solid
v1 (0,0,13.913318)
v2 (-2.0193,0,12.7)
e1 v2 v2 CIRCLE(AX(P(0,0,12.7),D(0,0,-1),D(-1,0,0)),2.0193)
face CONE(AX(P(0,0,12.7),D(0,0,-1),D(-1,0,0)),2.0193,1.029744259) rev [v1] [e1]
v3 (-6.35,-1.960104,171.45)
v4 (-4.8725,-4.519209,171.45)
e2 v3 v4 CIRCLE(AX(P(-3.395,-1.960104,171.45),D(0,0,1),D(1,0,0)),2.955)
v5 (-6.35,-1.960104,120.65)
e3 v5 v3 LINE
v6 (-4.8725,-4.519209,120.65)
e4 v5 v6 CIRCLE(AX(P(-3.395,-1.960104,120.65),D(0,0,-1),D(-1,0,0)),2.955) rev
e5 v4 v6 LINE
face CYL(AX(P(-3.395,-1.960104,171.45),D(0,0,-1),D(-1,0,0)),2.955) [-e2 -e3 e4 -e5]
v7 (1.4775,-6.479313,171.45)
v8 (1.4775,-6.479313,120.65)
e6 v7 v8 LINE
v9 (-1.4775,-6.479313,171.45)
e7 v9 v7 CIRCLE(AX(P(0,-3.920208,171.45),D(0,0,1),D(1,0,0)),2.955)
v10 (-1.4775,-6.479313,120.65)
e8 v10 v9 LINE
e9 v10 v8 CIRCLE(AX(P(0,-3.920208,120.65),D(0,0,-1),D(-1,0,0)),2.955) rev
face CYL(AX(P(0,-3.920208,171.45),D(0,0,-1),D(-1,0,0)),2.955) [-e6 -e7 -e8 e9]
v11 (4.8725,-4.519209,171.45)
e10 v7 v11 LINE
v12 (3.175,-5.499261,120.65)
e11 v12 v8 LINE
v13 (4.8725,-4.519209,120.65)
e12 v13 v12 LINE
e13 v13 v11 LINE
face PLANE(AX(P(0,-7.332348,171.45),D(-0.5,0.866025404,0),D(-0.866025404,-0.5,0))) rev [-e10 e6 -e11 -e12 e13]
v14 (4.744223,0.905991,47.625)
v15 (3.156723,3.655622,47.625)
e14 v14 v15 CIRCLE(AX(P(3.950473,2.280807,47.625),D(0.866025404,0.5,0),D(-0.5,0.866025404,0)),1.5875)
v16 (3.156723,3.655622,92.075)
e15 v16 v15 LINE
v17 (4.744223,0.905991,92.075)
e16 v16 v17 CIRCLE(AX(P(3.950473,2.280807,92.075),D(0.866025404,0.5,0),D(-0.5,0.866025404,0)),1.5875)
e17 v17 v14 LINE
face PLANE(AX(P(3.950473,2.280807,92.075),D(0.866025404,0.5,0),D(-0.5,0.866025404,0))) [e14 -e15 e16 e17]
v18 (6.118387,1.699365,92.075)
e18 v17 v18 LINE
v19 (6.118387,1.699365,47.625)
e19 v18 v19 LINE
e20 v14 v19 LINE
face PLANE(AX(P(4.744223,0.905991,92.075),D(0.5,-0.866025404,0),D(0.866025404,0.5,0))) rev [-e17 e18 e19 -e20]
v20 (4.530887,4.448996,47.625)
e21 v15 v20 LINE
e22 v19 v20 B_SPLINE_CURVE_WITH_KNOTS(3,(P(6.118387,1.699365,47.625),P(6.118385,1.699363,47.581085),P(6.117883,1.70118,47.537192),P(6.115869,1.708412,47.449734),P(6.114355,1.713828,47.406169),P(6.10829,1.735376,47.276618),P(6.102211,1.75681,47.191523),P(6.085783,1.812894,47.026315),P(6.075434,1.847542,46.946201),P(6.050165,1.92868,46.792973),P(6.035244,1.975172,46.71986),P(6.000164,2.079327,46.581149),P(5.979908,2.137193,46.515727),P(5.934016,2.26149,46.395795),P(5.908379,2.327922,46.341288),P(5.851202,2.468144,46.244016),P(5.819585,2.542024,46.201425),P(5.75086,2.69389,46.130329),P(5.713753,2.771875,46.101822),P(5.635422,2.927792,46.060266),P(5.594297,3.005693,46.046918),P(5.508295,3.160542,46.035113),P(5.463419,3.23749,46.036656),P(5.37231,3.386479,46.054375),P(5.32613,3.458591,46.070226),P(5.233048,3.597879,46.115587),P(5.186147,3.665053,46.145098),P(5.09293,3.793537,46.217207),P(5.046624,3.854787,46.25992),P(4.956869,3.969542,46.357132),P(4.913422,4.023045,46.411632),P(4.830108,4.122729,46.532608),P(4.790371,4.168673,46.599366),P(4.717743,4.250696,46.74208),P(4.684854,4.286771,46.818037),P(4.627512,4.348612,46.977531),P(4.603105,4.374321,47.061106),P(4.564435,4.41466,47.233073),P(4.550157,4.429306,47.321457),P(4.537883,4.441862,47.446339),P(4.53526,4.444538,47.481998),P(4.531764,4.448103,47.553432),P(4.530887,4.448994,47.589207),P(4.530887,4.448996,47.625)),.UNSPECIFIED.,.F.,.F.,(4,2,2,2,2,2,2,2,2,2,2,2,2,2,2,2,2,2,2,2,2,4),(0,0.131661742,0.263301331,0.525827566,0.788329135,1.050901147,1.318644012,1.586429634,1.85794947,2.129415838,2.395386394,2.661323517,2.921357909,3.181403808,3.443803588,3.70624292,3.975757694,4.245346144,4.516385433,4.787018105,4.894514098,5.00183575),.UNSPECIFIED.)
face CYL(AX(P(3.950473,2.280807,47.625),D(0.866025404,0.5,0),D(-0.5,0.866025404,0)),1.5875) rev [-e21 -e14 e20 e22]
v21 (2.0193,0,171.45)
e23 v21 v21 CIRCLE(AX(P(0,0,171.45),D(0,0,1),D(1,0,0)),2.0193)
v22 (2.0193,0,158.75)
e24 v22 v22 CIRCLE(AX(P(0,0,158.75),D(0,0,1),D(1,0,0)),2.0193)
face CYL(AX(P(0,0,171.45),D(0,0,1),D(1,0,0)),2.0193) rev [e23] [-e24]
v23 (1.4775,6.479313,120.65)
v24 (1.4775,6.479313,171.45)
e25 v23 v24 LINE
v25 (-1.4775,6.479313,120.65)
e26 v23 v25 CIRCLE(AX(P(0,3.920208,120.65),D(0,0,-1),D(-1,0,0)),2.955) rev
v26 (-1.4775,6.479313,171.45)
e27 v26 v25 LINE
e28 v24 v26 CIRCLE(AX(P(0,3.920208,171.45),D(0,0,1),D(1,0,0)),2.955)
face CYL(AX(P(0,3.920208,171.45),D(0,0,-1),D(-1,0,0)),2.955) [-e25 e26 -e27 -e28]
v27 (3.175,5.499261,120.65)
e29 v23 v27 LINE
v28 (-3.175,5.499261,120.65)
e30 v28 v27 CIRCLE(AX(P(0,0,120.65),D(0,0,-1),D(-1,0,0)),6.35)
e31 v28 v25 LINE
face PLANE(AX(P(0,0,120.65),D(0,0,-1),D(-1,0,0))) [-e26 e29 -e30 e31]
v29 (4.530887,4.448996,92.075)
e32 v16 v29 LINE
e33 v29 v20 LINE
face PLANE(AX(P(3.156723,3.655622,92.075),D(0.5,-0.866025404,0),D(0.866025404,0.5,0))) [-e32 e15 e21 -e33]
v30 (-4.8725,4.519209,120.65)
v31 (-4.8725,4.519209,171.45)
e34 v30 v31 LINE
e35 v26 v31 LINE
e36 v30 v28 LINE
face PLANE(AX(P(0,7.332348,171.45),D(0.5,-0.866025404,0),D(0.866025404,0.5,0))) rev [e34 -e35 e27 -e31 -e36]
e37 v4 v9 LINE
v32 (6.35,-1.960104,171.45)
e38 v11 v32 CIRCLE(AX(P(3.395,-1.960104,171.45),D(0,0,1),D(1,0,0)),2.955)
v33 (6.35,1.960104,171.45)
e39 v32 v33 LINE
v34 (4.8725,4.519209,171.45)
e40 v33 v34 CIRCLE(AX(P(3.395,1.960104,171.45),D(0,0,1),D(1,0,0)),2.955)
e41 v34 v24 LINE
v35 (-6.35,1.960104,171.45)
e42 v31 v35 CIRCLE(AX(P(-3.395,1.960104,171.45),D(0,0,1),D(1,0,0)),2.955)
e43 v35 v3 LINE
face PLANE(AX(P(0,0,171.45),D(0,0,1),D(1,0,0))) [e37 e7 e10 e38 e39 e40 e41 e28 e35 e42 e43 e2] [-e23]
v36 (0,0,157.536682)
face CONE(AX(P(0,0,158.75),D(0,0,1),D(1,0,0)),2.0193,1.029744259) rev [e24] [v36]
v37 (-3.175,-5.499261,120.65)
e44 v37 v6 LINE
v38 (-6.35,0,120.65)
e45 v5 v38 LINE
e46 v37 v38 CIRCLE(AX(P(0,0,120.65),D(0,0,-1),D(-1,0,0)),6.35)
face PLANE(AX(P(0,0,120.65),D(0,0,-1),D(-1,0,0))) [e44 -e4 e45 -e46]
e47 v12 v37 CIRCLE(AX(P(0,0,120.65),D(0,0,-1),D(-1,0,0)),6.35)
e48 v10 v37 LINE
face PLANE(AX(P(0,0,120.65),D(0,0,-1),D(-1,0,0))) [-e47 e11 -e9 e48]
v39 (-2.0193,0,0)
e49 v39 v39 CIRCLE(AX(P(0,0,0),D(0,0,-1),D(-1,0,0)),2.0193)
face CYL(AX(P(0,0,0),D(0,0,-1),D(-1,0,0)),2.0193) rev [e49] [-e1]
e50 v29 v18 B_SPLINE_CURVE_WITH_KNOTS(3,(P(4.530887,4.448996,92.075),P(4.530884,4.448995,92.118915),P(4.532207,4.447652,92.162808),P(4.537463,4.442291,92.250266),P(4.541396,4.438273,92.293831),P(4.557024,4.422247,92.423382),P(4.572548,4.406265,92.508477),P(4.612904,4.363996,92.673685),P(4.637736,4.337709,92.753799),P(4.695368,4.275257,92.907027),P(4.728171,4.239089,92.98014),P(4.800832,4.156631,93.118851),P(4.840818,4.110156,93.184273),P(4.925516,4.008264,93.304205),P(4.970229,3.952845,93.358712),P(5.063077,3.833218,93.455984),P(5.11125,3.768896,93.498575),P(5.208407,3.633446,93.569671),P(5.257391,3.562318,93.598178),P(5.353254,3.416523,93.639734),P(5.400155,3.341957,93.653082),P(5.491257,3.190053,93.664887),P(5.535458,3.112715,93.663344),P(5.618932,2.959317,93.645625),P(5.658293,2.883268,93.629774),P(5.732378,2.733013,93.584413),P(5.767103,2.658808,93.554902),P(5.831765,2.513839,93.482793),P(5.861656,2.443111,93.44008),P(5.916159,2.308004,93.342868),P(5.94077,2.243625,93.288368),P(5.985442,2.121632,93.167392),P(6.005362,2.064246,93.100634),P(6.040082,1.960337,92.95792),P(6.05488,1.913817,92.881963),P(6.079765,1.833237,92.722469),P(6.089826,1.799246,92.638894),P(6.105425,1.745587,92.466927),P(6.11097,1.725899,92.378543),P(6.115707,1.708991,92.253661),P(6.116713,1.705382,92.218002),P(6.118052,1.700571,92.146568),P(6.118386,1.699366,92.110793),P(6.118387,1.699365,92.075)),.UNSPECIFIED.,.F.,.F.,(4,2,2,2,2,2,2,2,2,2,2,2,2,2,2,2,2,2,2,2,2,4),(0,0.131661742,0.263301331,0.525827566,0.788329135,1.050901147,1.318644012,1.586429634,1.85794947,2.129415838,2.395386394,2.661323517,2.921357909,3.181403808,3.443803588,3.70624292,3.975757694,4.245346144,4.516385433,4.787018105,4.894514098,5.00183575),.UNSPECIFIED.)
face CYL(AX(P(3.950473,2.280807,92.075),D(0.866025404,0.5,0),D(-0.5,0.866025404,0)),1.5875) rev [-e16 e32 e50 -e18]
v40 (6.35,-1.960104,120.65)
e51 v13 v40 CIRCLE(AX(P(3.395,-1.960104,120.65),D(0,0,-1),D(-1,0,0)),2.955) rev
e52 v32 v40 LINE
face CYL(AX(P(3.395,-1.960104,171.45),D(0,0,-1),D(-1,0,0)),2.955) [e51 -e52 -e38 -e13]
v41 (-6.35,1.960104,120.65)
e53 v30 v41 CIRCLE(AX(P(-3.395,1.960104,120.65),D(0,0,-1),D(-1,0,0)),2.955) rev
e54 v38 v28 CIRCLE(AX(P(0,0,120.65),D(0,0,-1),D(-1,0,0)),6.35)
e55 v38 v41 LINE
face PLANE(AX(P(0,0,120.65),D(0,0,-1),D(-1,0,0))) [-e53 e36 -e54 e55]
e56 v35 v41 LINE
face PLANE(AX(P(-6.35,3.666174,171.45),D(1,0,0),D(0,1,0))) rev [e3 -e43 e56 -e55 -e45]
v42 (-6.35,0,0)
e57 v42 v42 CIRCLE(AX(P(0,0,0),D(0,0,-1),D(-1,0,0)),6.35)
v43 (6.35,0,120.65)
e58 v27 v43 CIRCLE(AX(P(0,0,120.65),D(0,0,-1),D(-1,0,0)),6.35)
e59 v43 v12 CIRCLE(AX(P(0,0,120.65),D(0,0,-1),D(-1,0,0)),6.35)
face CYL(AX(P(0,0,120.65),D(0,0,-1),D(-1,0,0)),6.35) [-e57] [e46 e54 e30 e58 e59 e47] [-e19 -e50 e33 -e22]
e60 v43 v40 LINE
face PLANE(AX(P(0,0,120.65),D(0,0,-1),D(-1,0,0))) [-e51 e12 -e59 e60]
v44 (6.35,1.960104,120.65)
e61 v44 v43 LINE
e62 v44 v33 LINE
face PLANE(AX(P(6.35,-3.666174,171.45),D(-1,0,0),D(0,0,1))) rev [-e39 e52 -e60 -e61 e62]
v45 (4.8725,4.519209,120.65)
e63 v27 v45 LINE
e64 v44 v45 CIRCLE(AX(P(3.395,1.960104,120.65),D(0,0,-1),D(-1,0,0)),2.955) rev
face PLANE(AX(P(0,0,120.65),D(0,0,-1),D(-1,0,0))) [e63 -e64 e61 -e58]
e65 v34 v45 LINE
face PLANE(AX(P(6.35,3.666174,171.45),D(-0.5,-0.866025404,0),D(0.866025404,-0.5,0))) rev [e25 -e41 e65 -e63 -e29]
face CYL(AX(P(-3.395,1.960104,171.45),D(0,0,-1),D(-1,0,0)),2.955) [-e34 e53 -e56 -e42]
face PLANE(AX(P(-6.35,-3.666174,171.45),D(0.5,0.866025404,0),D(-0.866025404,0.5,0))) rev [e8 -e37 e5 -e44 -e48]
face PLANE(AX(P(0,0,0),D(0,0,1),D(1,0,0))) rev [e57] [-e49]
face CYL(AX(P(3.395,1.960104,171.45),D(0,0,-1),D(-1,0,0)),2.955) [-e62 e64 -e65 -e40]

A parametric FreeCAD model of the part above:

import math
import FreeCAD as App
import Part
import Sketcher
Q = App.Units.Quantity


def edges_at(feature, points):
    """Names of the edges that pass closest to the given points."""
    edges = feature.Shape.Edges
    near = lambda p: min(range(len(edges)), key=lambda i: edges[i].distToShape(Part.Vertex(*p))[0])
    return sorted({f"Edge{near(p) + 1}" for p in points})


def add_polygon(sketch, points):
    """Adds a closed chain of lines whose ends are joined by coincident constraints."""
    first, n = sketch.GeometryCount, len(points)
    for a, b in zip(points, points[1:] + points[:1]):
        sketch.addGeometry(Part.LineSegment(App.Vector(*a, 0), App.Vector(*b, 0)), False)
    for i in range(n):
        sketch.addConstraint(Sketcher.Constraint("Coincident", first + i, 2, first + (i + 1) % n, 1))

doc = App.newDocument("Part")
body = doc.addObject("PartDesign::Body", "Body")

# Sketch on XY plane
sketch1 = body.newObject("Sketcher::SketchObject", "Sketch")
sketch1.AttachmentSupport = (doc.getObject("XY_Plane"), [""])
sketch1.MapMode = "FlatFace"
add_polygon(sketch1, [(0, 7), (-6, 4), (-6, -4), (0, -7), (6, -4), (6, 4)])  # lines 0-5
sketch1.addConstraint([
    Sketcher.Constraint("Vertical", 1),
    Sketcher.Constraint("Vertical", 4),
    Sketcher.Constraint("Symmetric", 0, 2, 3, 2, -1, 1),
    Sketcher.Constraint("Symmetric", 2, 2, 5, 2, -1, 1),
    Sketcher.Constraint("PointOnObject", 2, 2, -2),
    Sketcher.Constraint("Parallel", 2, 5),
    Sketcher.Constraint("Horizontal", 1, 2, 3, 2),
    Sketcher.Constraint("Angle", 0, Q("-150 deg")),
    Sketcher.Constraint("DistanceX", 1, 2, 3, 2, Q("0.5 in")),
    Sketcher.Constraint("DistanceY", 1, 2, 1, 1, 7.332348),
])
pad1 = body.newObject("PartDesign::Pad", "Pad")
pad1.Profile = sketch1
pad1.Length = Q("6.75 in")
doc.recompute()

fillet = body.newObject("PartDesign::Fillet", "Fillet")
fillet.Base = (pad1, edges_at(pad1, [
    (6.35, 3.666, 85.725),
    (6.35, -3.666, 85.725),
    (0, -7.332, 85.725),
    (-6.35, -3.666, 85.725),
    (-6.35, 3.666, 85.725),
    (0, 7.332, 85.725),
]))
fillet.Radius = 2.955

# Sketch on XY plane
sketch2 = body.newObject("Sketcher::SketchObject", "Sketch001")
sketch2.AttachmentSupport = (doc.getObject("XY_Plane"), [""])
sketch2.MapMode = "FlatFace"
sketch2.addGeometry(Part.Circle(App.Vector(0, 0, 0), App.Vector(0, 0, 1), 2), False)
sketch2.addConstraint([
    Sketcher.Constraint("Coincident", 0, 3, -1, 1),
    Sketcher.Constraint("Diameter", 0, Q("0.159 in")),
])
doc.recompute()
hole = body.newObject("PartDesign::Hole", "Hole")
hole.Profile = sketch2
hole.ThreadType = "None"
hole.Diameter = Q("0.159 in")
hole.DepthType = "Dimension"
hole.Depth = Q("0.5 in")
hole.DrillPoint = "Angled"
hole.DrillPointAngle = 118
hole.Reversed = True

# Sketch on XY plane
sketch3 = body.newObject("Sketcher::SketchObject", "Sketch002")
sketch3.AttachmentSupport = (doc.getObject("XY_Plane"), [""])
sketch3.MapMode = "FlatFace"
sketch3.AttachmentOffset = App.Placement(App.Vector(0, 0, 6.75 * 25.4), App.Rotation())
sketch3.addGeometry(Part.Circle(App.Vector(0, 0, 0), App.Vector(0, 0, 1), 2), False)
sketch3.addConstraint([
    Sketcher.Constraint("Coincident", 0, 3, -1, 1),
    Sketcher.Constraint("Diameter", 0, Q("0.159 in")),
])
doc.recompute()
hole2 = body.newObject("PartDesign::Hole", "Hole001")
hole2.Profile = sketch3
hole2.ThreadType = "None"
hole2.Diameter = Q("0.159 in")
hole2.DepthType = "Dimension"
hole2.Depth = Q("0.5 in")
hole2.DrillPoint = "Angled"
hole2.DrillPointAngle = 118

# Sketch on XY plane
sketch4 = body.newObject("Sketcher::SketchObject", "Sketch003")
sketch4.AttachmentSupport = (doc.getObject("XY_Plane"), [""])
sketch4.MapMode = "FlatFace"
add_polygon(sketch4, [(25, 25), (25, -25), (-25, -25), (-25, 25)])  # lines 0-3
sketch4.addGeometry(Part.Circle(App.Vector(0, 0, 0), App.Vector(0, 0, 1), 6), False)  # 4
sketch4.addConstraint([
    Sketcher.Constraint("Vertical", 0),
    Sketcher.Constraint("Horizontal", 1),
    Sketcher.Constraint("Vertical", 2),
    Sketcher.Constraint("Horizontal", 3),
    Sketcher.Constraint("Coincident", 4, 3, -1, 1),
    Sketcher.Constraint("Symmetric", 0, 2, 2, 2, -1, 1),
    Sketcher.Constraint("Diameter", 4, Q("0.5 in")),
    Sketcher.Constraint("DistanceX", 1, 2, 1, 1, 49.194),
    Sketcher.Constraint("DistanceY", 0, 2, 0, 1, 50.244),
])
pocket1 = body.newObject("PartDesign::Pocket", "Pocket")
pocket1.Profile = sketch4
pocket1.Length = Q("4.75 in")
pocket1.Reversed = True

# Sketch on an angled plane
sketch5 = body.newObject("Sketcher::SketchObject", "Sketch004")
sketch5.Placement = App.Placement(App.Vector(5.61125, 3.239657, 0), App.Rotation(App.Vector(0, 0, 1), App.Vector(-0.5, 0.866025404, 0), App.Vector(-0.866025404, -0.5, 0), "ZXY"))
sketch5.addGeometry([
    Part.LineSegment(App.Vector(92.1, 1.6, 0), App.Vector(47.6, 1.6, 0)),
    Part.ArcOfCircle(Part.Circle(App.Vector(47.6, 0, 0), App.Vector(0, 0, 1), 1.6), math.radians(90), math.radians(270)),
    Part.LineSegment(App.Vector(47.6, -1.6, 0), App.Vector(92.1, -1.6, 0)),
    Part.ArcOfCircle(Part.Circle(App.Vector(92.1, 0, 0), App.Vector(0, 0, 1), 1.6), math.radians(-90), math.radians(90)),
], False)
sketch5.addConstraint([
    Sketcher.Constraint("Tangent", 0, 2, 1, 1),
    Sketcher.Constraint("Tangent", 1, 2, 2, 1),
    Sketcher.Constraint("Tangent", 2, 2, 3, 1),
    Sketcher.Constraint("Tangent", 3, 2, 0, 1),
    Sketcher.Constraint("Horizontal", 0),
    Sketcher.Constraint("Horizontal", 2),
    Sketcher.Constraint("PointOnObject", 1, 3, -1),
    Sketcher.Constraint("Radius", 1, Q("0.0625 in")),
    Sketcher.Constraint("DistanceX", 0, 2, 0, 1, Q("1.75 in")),
    Sketcher.Constraint("DistanceX", -1, 1, 1, 3, Q("1.875 in")),
])
pocket2 = body.newObject("PartDesign::Pocket", "Pocket001")
pocket2.Profile = sketch5
pocket2.Length = Q("0.0755 in")
pocket2.Reversed = True

doc.recompute()
